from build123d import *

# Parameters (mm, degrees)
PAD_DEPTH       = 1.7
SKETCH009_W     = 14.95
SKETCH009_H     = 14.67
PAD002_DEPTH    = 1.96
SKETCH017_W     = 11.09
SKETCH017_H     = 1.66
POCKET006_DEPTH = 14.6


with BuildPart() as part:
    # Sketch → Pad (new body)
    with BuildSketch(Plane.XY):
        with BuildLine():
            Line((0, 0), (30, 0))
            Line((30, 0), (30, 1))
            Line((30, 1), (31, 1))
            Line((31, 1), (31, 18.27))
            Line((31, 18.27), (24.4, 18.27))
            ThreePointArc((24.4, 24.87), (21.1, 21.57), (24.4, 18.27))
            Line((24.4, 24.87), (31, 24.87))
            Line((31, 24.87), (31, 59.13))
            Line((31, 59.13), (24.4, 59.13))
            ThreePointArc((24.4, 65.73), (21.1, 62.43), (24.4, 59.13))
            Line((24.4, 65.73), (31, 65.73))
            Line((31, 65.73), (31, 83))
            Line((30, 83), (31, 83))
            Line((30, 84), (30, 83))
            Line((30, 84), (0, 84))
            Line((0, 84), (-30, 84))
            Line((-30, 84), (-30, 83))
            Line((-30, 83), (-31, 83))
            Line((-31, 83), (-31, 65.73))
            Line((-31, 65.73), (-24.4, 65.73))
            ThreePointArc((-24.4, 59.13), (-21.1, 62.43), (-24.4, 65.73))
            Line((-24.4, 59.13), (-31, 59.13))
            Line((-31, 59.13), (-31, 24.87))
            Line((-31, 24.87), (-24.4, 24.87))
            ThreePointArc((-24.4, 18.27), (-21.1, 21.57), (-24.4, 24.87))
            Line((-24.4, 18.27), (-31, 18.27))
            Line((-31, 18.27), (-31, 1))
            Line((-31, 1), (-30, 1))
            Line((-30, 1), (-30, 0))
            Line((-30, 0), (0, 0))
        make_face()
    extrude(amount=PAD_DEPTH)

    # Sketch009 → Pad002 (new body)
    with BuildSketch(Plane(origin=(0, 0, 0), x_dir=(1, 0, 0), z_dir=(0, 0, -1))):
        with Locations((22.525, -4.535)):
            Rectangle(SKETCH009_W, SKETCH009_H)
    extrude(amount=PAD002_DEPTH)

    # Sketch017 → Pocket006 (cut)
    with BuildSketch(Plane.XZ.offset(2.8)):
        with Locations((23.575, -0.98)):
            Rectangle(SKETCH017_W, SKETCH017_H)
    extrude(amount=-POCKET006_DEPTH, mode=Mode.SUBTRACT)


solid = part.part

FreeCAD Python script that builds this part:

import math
import FreeCAD as App
import Part
import Sketcher
from FreeCAD import Vector
Q = App.Units.Quantity


def add_polygon(sketch, points):
    """Adds a closed chain of lines whose ends are joined by coincident constraints."""
    first, n = sketch.GeometryCount, len(points)
    for a, b in zip(points, points[1:] + points[:1]):
        sketch.addGeometry(Part.LineSegment(App.Vector(*a, 0), App.Vector(*b, 0)), False)
    for i in range(n):
        sketch.addConstraint(Sketcher.Constraint("Coincident", first + i, 2, first + (i + 1) % n, 1))

doc = App.newDocument("Part")
body = doc.addObject("PartDesign::Body", "Body")

sketch1 = body.newObject("Sketcher::SketchObject", "Sketch")
sketch1.AttachmentSupport = (doc.getObject("XY_Plane"), [""])
sketch1.MapMode = "FlatFace"
sketch1.addGeometry([
    Part.LineSegment(Vector(30, 0, 0), Vector(30, 1, 0)),
    Part.LineSegment(Vector(30, 1, 0), Vector(31, 1, 0)),
    Part.LineSegment(Vector(31, 1, 0), Vector(31, 18.3, 0)),
    Part.LineSegment(Vector(31, 18.3, 0), Vector(24.4, 18.3, 0)),
    Part.ArcOfCircle(Part.Circle(Vector(24.4, 21.6, 0), Vector(0, 0, 1), 3.3), math.radians(90), math.radians(270)),
    Part.LineSegment(Vector(24.4, 24.9, 0), Vector(31, 24.9, 0)),
    Part.LineSegment(Vector(31, 24.9, 0), Vector(31, 59.1, 0)),
    Part.LineSegment(Vector(31, 59.1, 0), Vector(24.4, 59.1, 0)),
    Part.ArcOfCircle(Part.Circle(Vector(24.4, 62.4, 0), Vector(0, 0, 1), 3.3), math.radians(90), math.radians(270)),
    Part.LineSegment(Vector(24.4, 65.7, 0), Vector(31, 65.7, 0)),
    Part.LineSegment(Vector(31, 65.7, 0), Vector(31, 83, 0)),
    Part.LineSegment(Vector(31, 83, 0), Vector(30, 83, 0)),
    Part.LineSegment(Vector(30, 83, 0), Vector(30, 84, 0)),
    Part.LineSegment(Vector(30, 84, 0), Vector(-30, 84, 0)),
    Part.LineSegment(Vector(-30, 84, 0), Vector(-30, 83, 0)),
    Part.LineSegment(Vector(-30, 83, 0), Vector(-31, 83, 0)),
    Part.LineSegment(Vector(-31, 83, 0), Vector(-31, 65.7, 0)),
    Part.LineSegment(Vector(-31, 65.7, 0), Vector(-24.4, 65.7, 0)),
    Part.ArcOfCircle(Part.Circle(Vector(-24.4, 62.4, 0), Vector(0, 0, 1), 3.3), math.radians(-90), math.radians(90)),
    Part.LineSegment(Vector(-24.4, 59.1, 0), Vector(-31, 59.1, 0)),
    Part.LineSegment(Vector(-31, 59.1, 0), Vector(-31, 24.9, 0)),
    Part.LineSegment(Vector(-31, 24.9, 0), Vector(-24.4, 24.9, 0)),
    Part.ArcOfCircle(Part.Circle(Vector(-24.4, 21.6, 0), Vector(0, 0, 1), 3.3), math.radians(-90), math.radians(90)),
    Part.LineSegment(Vector(-24.4, 18.3, 0), Vector(-31, 18.3, 0)),
    Part.LineSegment(Vector(-31, 18.3, 0), Vector(-31, 1, 0)),
    Part.LineSegment(Vector(-31, 1, 0), Vector(-30, 1, 0)),
    Part.LineSegment(Vector(-30, 1, 0), Vector(-30, 0, 0)),
    Part.LineSegment(Vector(-30, 0, 0), Vector(30, 0, 0)),
], False)
sketch1.addConstraint([
    Sketcher.Constraint("Coincident", 0, 2, 1, 1),
    Sketcher.Constraint("Coincident", 1, 2, 2, 1),
    Sketcher.Constraint("Coincident", 2, 2, 3, 1),
    Sketcher.Constraint("Tangent", 3, 2, 4, 2),
    Sketcher.Constraint("Tangent", 4, 1, 5, 1),
    Sketcher.Constraint("Coincident", 5, 2, 6, 1),
    Sketcher.Constraint("Coincident", 6, 2, 7, 1),
    Sketcher.Constraint("Tangent", 7, 2, 8, 2),
    Sketcher.Constraint("Tangent", 8, 1, 9, 1),
    Sketcher.Constraint("Coincident", 9, 2, 10, 1),
    Sketcher.Constraint("Coincident", 10, 2, 11, 1),
    Sketcher.Constraint("Coincident", 11, 2, 12, 1),
    Sketcher.Constraint("Coincident", 12, 2, 13, 1),
    Sketcher.Constraint("Coincident", 13, 2, 14, 1),
    Sketcher.Constraint("Coincident", 14, 2, 15, 1),
    Sketcher.Constraint("Coincident", 15, 2, 16, 1),
    Sketcher.Constraint("Coincident", 16, 2, 17, 1),
    Sketcher.Constraint("Tangent", 17, 2, 18, 2),
    Sketcher.Constraint("Tangent", 18, 1, 19, 1),
    Sketcher.Constraint("Coincident", 19, 2, 20, 1),
    Sketcher.Constraint("Coincident", 20, 2, 21, 1),
    Sketcher.Constraint("Tangent", 21, 2, 22, 2),
    Sketcher.Constraint("Tangent", 22, 1, 23, 1),
    Sketcher.Constraint("Coincident", 23, 2, 24, 1),
    Sketcher.Constraint("Coincident", 24, 2, 25, 1),
    Sketcher.Constraint("Coincident", 25, 2, 26, 1),
    Sketcher.Constraint("Coincident", 26, 2, 27, 1),
    Sketcher.Constraint("Coincident", 27, 2, 0, 1),
    Sketcher.Constraint("Vertical", 0),
    Sketcher.Constraint("Horizontal", 1),
    Sketcher.Constraint("Vertical", 2),
    Sketcher.Constraint("Horizontal", 3),
    Sketcher.Constraint("Horizontal", 5),
    Sketcher.Constraint("Vertical", 6),
    Sketcher.Constraint("Horizontal", 7),
    Sketcher.Constraint("Horizontal", 9),
    Sketcher.Constraint("Vertical", 10),
    Sketcher.Constraint("Horizontal", 11),
    Sketcher.Constraint("Vertical", 12),
    Sketcher.Constraint("Horizontal", 13),
    Sketcher.Constraint("Vertical", 14),
    Sketcher.Constraint("Horizontal", 15),
    Sketcher.Constraint("Vertical", 16),
    Sketcher.Constraint("Horizontal", 17),
    Sketcher.Constraint("Horizontal", 19),
    Sketcher.Constraint("Vertical", 20),
    Sketcher.Constraint("Horizontal", 21),
    Sketcher.Constraint("Horizontal", 23),
    Sketcher.Constraint("Vertical", 24),
    Sketcher.Constraint("Horizontal", 25),
    Sketcher.Constraint("Vertical", 26),
    Sketcher.Constraint("Horizontal", 27),
    Sketcher.Constraint("Equal", 4, 8),
    Sketcher.Constraint("Equal", 8, 18),
    Sketcher.Constraint("Equal", 18, 22),
    Sketcher.Constraint("Symmetric", 26, 2, 27, 2, -1, 1),
    Sketcher.Constraint("Symmetric", 8, 3, 18, 3, -2),
    Sketcher.Constraint("Symmetric", 4, 3, 22, 3, -2),
    Sketcher.Constraint("Symmetric", 11, 2, 14, 2, -2),
    Sketcher.Constraint("Symmetric", 1, 2, 24, 2, -2),
    Sketcher.Constraint("Vertical", 4, 3, 8, 3),
    Sketcher.Constraint("Vertical", 2, 2, 5, 2),
    Sketcher.Constraint("Vertical", 6, 2, 9, 2),
    Sketcher.Constraint("Vertical", 0, 2, 11, 2),
    Sketcher.Constraint("Vertical", 16, 2, 19, 2),
    Sketcher.Constraint("Vertical", 20, 2, 23, 2),
    Sketcher.Constraint("Equal", 25, 0),
    Sketcher.Constraint("Equal", 2, 10),
    Sketcher.Constraint("Equal", 0, 12),
    Sketcher.Constraint("Radius", 4, Q("3.3 mm")),
    Sketcher.Constraint("DistanceX", 1, 1, 1, 2, Q("1 mm")),
    Sketcher.Constraint("DistanceX", 13, 2, 13, 1, Q("60 mm")),
    Sketcher.Constraint("DistanceX", 3, 2, 3, 1, Q("6.6 mm")),
    Sketcher.Constraint("DistanceY", -1, 1, 10, 2, Q("83 mm")),
    Sketcher.Constraint("DistanceY", 2, 1, 2, 2, Q("17.27 mm")),
])
pad1 = body.newObject("PartDesign::Pad", "Pad")
pad1.Profile = sketch1
pad1.Length = 1.7

sketch2 = body.newObject("Sketcher::SketchObject", "Sketch001")
sketch2.AttachmentSupport = (doc.getObject("XY_Plane"), [""])
sketch2.MapMode = "FlatFace"
add_polygon(sketch2, [(15, -3), (15, 12), (30, 12), (30, -3)])
sketch2.addConstraint([
    Sketcher.Constraint("Vertical", 0),
    Sketcher.Constraint("Horizontal", 1),
    Sketcher.Constraint("Vertical", 2),
    Sketcher.Constraint("Horizontal", 3),
    Sketcher.Constraint("DistanceX", -1, 1, 1, 2, Q("30 mm")),
    Sketcher.Constraint("DistanceX", 1, 1, 1, 2, Q("14.95 mm")),
    Sketcher.Constraint("DistanceY", 0, 1, 0, 2, Q("14.67 mm")),
    Sketcher.Constraint("DistanceY", 2, 2, -1, 1, Q("2.8 mm")),
])
pad2 = body.newObject("PartDesign::Pad", "Pad001")
pad2.Profile = sketch2
pad2.Length = 1.96
pad2.Reversed = True

sketch3 = body.newObject("Sketcher::SketchObject", "Sketch002")
sketch3.AttachmentSupport = (doc.getObject("XZ_Plane"), [""])
sketch3.MapMode = "FlatFace"
sketch3.AttachmentOffset = App.Placement(Vector(0, 0, 2.8), App.Rotation())
add_polygon(sketch3, [(18, -0.1), (18, -1.8), (29.1, -1.8), (29.1, -0.1)])
sketch3.addConstraint([
    Sketcher.Constraint("Vertical", 0),
    Sketcher.Constraint("Horizontal", 1),
    Sketcher.Constraint("Vertical", 2),
    Sketcher.Constraint("Horizontal", 3),
    Sketcher.Constraint("DistanceX", 1, 1, 1, 2, Q("11.09 mm")),
    Sketcher.Constraint("DistanceY", 0, 2, 0, 1, Q("1.66 mm")),
    Sketcher.Constraint("DistanceX", -1, 1, 0, 2, Q("18.03 mm")),
    Sketcher.Constraint("DistanceY", 0, 2, -1, 1, Q("1.81 mm")),
])
pocket1 = body.newObject("PartDesign::Pocket", "Pocket")
pocket1.Profile = sketch3
pocket1.Length = 14.6

doc.recompute()
